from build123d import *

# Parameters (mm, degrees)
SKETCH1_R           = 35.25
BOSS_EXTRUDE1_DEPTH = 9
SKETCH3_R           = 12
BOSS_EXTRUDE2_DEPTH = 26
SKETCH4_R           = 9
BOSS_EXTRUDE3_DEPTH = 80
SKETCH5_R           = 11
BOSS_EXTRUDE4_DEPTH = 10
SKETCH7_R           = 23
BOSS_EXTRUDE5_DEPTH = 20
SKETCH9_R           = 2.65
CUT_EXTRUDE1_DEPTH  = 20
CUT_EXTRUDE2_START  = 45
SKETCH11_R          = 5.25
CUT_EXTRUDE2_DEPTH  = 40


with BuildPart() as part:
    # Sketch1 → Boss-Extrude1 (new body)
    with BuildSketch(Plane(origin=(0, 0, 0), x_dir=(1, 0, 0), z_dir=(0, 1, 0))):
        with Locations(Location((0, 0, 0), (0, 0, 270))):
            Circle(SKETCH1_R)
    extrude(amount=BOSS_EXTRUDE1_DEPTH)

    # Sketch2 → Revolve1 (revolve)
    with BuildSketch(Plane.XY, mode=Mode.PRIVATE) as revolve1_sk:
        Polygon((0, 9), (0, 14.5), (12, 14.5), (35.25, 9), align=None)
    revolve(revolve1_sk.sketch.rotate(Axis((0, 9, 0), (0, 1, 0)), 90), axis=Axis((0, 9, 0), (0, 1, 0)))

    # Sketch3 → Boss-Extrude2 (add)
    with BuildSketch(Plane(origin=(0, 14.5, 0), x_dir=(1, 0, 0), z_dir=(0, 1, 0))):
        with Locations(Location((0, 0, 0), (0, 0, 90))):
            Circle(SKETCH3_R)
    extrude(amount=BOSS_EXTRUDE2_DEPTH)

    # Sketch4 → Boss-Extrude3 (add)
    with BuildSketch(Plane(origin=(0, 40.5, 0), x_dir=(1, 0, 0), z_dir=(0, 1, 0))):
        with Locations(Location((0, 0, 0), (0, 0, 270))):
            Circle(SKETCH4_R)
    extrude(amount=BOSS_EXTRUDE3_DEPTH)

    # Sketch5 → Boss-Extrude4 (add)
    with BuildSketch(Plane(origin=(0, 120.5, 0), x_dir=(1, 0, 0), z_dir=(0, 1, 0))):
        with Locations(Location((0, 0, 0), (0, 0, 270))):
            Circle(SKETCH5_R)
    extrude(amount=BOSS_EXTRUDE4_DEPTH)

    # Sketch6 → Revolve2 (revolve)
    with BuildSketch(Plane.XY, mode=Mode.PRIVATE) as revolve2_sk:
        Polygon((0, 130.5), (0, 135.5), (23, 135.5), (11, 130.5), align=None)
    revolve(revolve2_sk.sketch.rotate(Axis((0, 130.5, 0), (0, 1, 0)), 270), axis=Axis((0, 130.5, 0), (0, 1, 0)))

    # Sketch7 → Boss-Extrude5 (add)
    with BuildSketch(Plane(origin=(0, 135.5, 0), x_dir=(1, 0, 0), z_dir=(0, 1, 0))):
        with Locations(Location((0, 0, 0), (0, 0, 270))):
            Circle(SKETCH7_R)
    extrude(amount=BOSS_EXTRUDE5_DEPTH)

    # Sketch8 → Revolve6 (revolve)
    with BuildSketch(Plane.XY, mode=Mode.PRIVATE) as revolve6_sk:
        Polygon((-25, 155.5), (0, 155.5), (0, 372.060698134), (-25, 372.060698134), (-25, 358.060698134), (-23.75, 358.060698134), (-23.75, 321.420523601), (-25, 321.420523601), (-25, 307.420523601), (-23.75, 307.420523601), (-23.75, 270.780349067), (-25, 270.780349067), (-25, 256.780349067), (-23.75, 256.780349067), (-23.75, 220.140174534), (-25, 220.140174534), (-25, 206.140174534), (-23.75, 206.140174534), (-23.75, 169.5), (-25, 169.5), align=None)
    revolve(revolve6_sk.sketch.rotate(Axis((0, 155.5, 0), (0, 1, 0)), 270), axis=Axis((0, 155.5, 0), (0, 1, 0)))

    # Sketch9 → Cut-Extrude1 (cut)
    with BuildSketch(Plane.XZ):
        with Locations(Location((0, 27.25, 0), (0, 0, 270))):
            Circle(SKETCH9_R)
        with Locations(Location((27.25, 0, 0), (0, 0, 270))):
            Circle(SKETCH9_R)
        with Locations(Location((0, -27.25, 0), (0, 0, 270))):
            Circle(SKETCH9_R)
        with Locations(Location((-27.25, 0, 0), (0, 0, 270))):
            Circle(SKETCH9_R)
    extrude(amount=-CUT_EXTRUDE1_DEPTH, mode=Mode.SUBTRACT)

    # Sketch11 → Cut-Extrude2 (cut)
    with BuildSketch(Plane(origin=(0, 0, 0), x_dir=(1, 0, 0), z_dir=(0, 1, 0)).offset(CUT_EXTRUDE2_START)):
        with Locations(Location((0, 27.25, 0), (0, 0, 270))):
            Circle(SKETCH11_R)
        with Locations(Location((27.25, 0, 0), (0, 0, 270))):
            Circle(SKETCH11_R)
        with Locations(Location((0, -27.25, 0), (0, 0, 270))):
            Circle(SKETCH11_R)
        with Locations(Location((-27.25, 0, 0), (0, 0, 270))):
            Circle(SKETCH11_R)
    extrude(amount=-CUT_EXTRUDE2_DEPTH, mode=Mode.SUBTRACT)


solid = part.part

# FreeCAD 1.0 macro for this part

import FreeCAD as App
import Part
import Sketcher

V = App.Vector
Q = App.Units.Quantity


def add_polygon(sketch, points):
    """Adds a closed chain of lines whose ends are joined by coincident constraints."""
    first, n = sketch.GeometryCount, len(points)
    for a, b in zip(points, points[1:] + points[:1]):
        sketch.addGeometry(Part.LineSegment(App.Vector(*a, 0), App.Vector(*b, 0)), False)
    for i in range(n):
        sketch.addConstraint(Sketcher.Constraint("Coincident", first + i, 2, first + (i + 1) % n, 1))

doc = App.newDocument("Part")
params = doc.addObject("Spreadsheet::Sheet", "Params")
for row, (alias, value) in enumerate([
    ("sketch1_diameter", "70.5 mm"),
    ("pad1_length", "9 mm"),
    ("sketch2_width", "12 mm"),
    ("sketch2_height", "5.5 mm"),
    ("sketch2_width2", "35.25 mm"),
    ("revolution_angle", "360 deg"),
    ("sketch3_diameter", "24 mm"),
    ("pad2_length", "26 mm"),
    ("sketch4_diameter", "18 mm"),
    ("pad3_length", "80 mm"),
    ("sketch5_diameter", "22 mm"),
    ("pad4_length", "10 mm"),
    ("sketch6_width", "11 mm"),
    ("sketch6_width2", "23 mm"),
    ("sketch6_height", "5 mm"),
    ("revolution2_angle", "360 deg"),
    ("sketch7_diameter", "46 mm"),
    ("pad5_length", "20 mm"),
    ("sketch8_width", "25 mm"),
    ("sketch8_height", "14 mm"),
    ("sketch8_width2", "1.25 mm"),
    ("revolution3_angle", "360 deg"),
    ("sketch9_diameter", "5.3 mm"),
    ("pocket1_length", "20 mm"),
    ("sketch10_diameter", "10.5 mm"),
    ("pocket2_length", "40 mm"),
], start=1):
    params.set(f"A{row}", alias)
    params.set(f"B{row}", "=" + value)
    params.setAlias(f"B{row}", alias)

body = doc.addObject("PartDesign::Body", "Body")

# Sketch on XZ plane
sketch1 = doc.addObject("Sketcher::SketchObject", "Sketch")
body.addObject(sketch1)
sketch1.AttachmentSupport = (doc.XZ_Plane, [""])
sketch1.MapMode = "FlatFace"
sketch1.addGeometry(Part.Circle(V(0, 0, 0), V(0, 0, 1), 35), False)
sketch1.addConstraint(Sketcher.Constraint("Coincident", 0, 3, -1, 1))
sketch1.addConstraint(Sketcher.Constraint("Diameter", 0, Q("70.5 mm")))
sketch1.setExpression("Constraints[1]", "Params.sketch1_diameter")
pad1 = doc.addObject("PartDesign::Pad", "Pad")
body.addObject(pad1)
pad1.Profile = sketch1
pad1.setExpression("Length", "Params.pad1_length")
pad1.Reversed = True

# Sketch on XY plane
sketch2 = doc.addObject("Sketcher::SketchObject", "Sketch001")
body.addObject(sketch2)
sketch2.AttachmentSupport = (doc.XY_Plane, [""])
sketch2.MapMode = "FlatFace"
add_polygon(sketch2, [(0, 14), (0, 9), (35, 9), (12, 14)])  # lines 0-3
sketch2.addConstraint(Sketcher.Constraint("Vertical", 0))
sketch2.addConstraint(Sketcher.Constraint("Horizontal", 1))
sketch2.addConstraint(Sketcher.Constraint("Horizontal", 3))
sketch2.addConstraint(Sketcher.Constraint("PointOnObject", 0, 2, -2))
sketch2.addConstraint(Sketcher.Constraint("DistanceX", 3, 2, 3, 1, Q("12 mm")))
sketch2.addConstraint(Sketcher.Constraint("DistanceY", 0, 2, 0, 1, Q("5.5 mm")))
sketch2.addConstraint(Sketcher.Constraint("DistanceY", -1, 1, 0, 2, Q("9 mm")))
sketch2.addConstraint(Sketcher.Constraint("DistanceX", 1, 1, 1, 2, Q("35.25 mm")))
sketch2.setExpression("Constraints[8]", "Params.sketch2_width")
sketch2.setExpression("Constraints[9]", "Params.sketch2_height")
sketch2.setExpression("Constraints[11]", "Params.sketch2_width2")
revolution = doc.addObject("PartDesign::Revolution", "Revolution")
body.addObject(revolution)
revolution.Profile = sketch2
revolution.ReferenceAxis = (sketch2, ["V_Axis"])
revolution.setExpression("Angle", "Params.revolution_angle")

# Sketch on XZ plane
sketch3 = doc.addObject("Sketcher::SketchObject", "Sketch002")
body.addObject(sketch3)
sketch3.AttachmentSupport = (doc.XZ_Plane, [""])
sketch3.MapMode = "FlatFace"
sketch3.AttachmentOffset = App.Placement(V(0, 0, -14.5), App.Rotation())
sketch3.addGeometry(Part.Circle(V(0, 0, 0), V(0, 0, 1), 12), False)
sketch3.addConstraint(Sketcher.Constraint("Coincident", 0, 3, -1, 1))
sketch3.addConstraint(Sketcher.Constraint("Diameter", 0, Q("24 mm")))
sketch3.setExpression("Constraints[1]", "Params.sketch3_diameter")
pad2 = doc.addObject("PartDesign::Pad", "Pad001")
body.addObject(pad2)
pad2.Profile = sketch3
pad2.setExpression("Length", "Params.pad2_length")
pad2.Reversed = True

# Sketch on XZ plane
sketch4 = doc.addObject("Sketcher::SketchObject", "Sketch003")
body.addObject(sketch4)
sketch4.AttachmentSupport = (doc.XZ_Plane, [""])
sketch4.MapMode = "FlatFace"
sketch4.AttachmentOffset = App.Placement(V(0, 0, -40.5), App.Rotation())
sketch4.addGeometry(Part.Circle(V(0, 0, 0), V(0, 0, 1), 9), False)
sketch4.addConstraint(Sketcher.Constraint("Coincident", 0, 3, -1, 1))
sketch4.addConstraint(Sketcher.Constraint("Diameter", 0, Q("18 mm")))
sketch4.setExpression("Constraints[1]", "Params.sketch4_diameter")
pad3 = doc.addObject("PartDesign::Pad", "Pad002")
body.addObject(pad3)
pad3.Profile = sketch4
pad3.setExpression("Length", "Params.pad3_length")
pad3.Reversed = True

# Sketch on XZ plane
sketch5 = doc.addObject("Sketcher::SketchObject", "Sketch004")
body.addObject(sketch5)
sketch5.AttachmentSupport = (doc.XZ_Plane, [""])
sketch5.MapMode = "FlatFace"
sketch5.AttachmentOffset = App.Placement(V(0, 0, -120.5), App.Rotation())
sketch5.addGeometry(Part.Circle(V(0, 0, 0), V(0, 0, 1), 11), False)
sketch5.addConstraint(Sketcher.Constraint("Coincident", 0, 3, -1, 1))
sketch5.addConstraint(Sketcher.Constraint("Diameter", 0, Q("22 mm")))
sketch5.setExpression("Constraints[1]", "Params.sketch5_diameter")
pad4 = doc.addObject("PartDesign::Pad", "Pad003")
body.addObject(pad4)
pad4.Profile = sketch5
pad4.setExpression("Length", "Params.pad4_length")
pad4.Reversed = True

# Sketch on XY plane
sketch6 = doc.addObject("Sketcher::SketchObject", "Sketch005")
body.addObject(sketch6)
sketch6.AttachmentSupport = (doc.XY_Plane, [""])
sketch6.MapMode = "FlatFace"
add_polygon(sketch6, [(0, 136), (0, 130), (11, 130), (23, 136)])  # lines 0-3
sketch6.addConstraint(Sketcher.Constraint("Vertical", 0))
sketch6.addConstraint(Sketcher.Constraint("Horizontal", 1))
sketch6.addConstraint(Sketcher.Constraint("Horizontal", 3))
sketch6.addConstraint(Sketcher.Constraint("PointOnObject", 0, 2, -2))
sketch6.addConstraint(Sketcher.Constraint("DistanceX", 1, 1, 1, 2, Q("11 mm")))
sketch6.addConstraint(Sketcher.Constraint("DistanceX", 3, 2, 3, 1, Q("23 mm")))
sketch6.addConstraint(Sketcher.Constraint("DistanceY", 0, 2, 0, 1, Q("5 mm")))
sketch6.addConstraint(Sketcher.Constraint("DistanceY", -1, 1, 0, 2, Q("130.5 mm")))
sketch6.setExpression("Constraints[8]", "Params.sketch6_width")
sketch6.setExpression("Constraints[9]", "Params.sketch6_width2")
sketch6.setExpression("Constraints[10]", "Params.sketch6_height")
revolution2 = doc.addObject("PartDesign::Revolution", "Revolution001")
body.addObject(revolution2)
revolution2.Profile = sketch6
revolution2.ReferenceAxis = (sketch6, ["V_Axis"])
revolution2.setExpression("Angle", "Params.revolution2_angle")

# Sketch on XZ plane
sketch7 = doc.addObject("Sketcher::SketchObject", "Sketch006")
body.addObject(sketch7)
sketch7.AttachmentSupport = (doc.XZ_Plane, [""])
sketch7.MapMode = "FlatFace"
sketch7.AttachmentOffset = App.Placement(V(0, 0, -135.5), App.Rotation())
sketch7.addGeometry(Part.Circle(V(0, 0, 0), V(0, 0, 1), 23), False)
sketch7.addConstraint(Sketcher.Constraint("Coincident", 0, 3, -1, 1))
sketch7.addConstraint(Sketcher.Constraint("Diameter", 0, Q("46 mm")))
sketch7.setExpression("Constraints[1]", "Params.sketch7_diameter")
pad5 = doc.addObject("PartDesign::Pad", "Pad004")
body.addObject(pad5)
pad5.Profile = sketch7
pad5.setExpression("Length", "Params.pad5_length")
pad5.Reversed = True

# Sketch on XY plane
sketch8 = doc.addObject("Sketcher::SketchObject", "Sketch007")
body.addObject(sketch8)
sketch8.AttachmentSupport = (doc.XY_Plane, [""])
sketch8.MapMode = "FlatFace"
add_polygon(sketch8, [(-25, 155.5), (0, 155.5), (0, 372.1), (-25, 372.1), (-25, 358.1), (-23.8, 358.1), (-23.8, 321.4), (-25, 321.4), (-25, 307.4), (-23.8, 307.4), (-23.8, 270.8), (-25, 270.8), (-25, 256.8), (-23.8, 256.8), (-23.8, 220.1), (-25, 220.1), (-25, 206.1), (-23.8, 206.1), (-23.8, 169.5), (-25, 169.5)])  # lines 0-19
sketch8.addConstraint(Sketcher.Constraint("Horizontal", 0))
sketch8.addConstraint(Sketcher.Constraint("Vertical", 1))
sketch8.addConstraint(Sketcher.Constraint("Horizontal", 2))
sketch8.addConstraint(Sketcher.Constraint("Vertical", 3))
sketch8.addConstraint(Sketcher.Constraint("Horizontal", 4))
sketch8.addConstraint(Sketcher.Constraint("Vertical", 5))
sketch8.addConstraint(Sketcher.Constraint("Horizontal", 6))
sketch8.addConstraint(Sketcher.Constraint("Vertical", 7))
sketch8.addConstraint(Sketcher.Constraint("Horizontal", 8))
sketch8.addConstraint(Sketcher.Constraint("Vertical", 9))
sketch8.addConstraint(Sketcher.Constraint("Horizontal", 10))
sketch8.addConstraint(Sketcher.Constraint("Vertical", 11))
sketch8.addConstraint(Sketcher.Constraint("Horizontal", 12))
sketch8.addConstraint(Sketcher.Constraint("Vertical", 13))
sketch8.addConstraint(Sketcher.Constraint("Horizontal", 14))
sketch8.addConstraint(Sketcher.Constraint("Vertical", 15))
sketch8.addConstraint(Sketcher.Constraint("Horizontal", 16))
sketch8.addConstraint(Sketcher.Constraint("Vertical", 17))
sketch8.addConstraint(Sketcher.Constraint("Horizontal", 18))
sketch8.addConstraint(Sketcher.Constraint("Vertical", 19))
sketch8.addConstraint(Sketcher.Constraint("PointOnObject", 0, 2, -2))
sketch8.addConstraint(Sketcher.Constraint("Vertical", 3, 2, 6, 2))
sketch8.addConstraint(Sketcher.Constraint("Vertical", 5, 2, 8, 2))
sketch8.addConstraint(Sketcher.Constraint("Vertical", 7, 2, 10, 2))
sketch8.addConstraint(Sketcher.Constraint("Vertical", 9, 2, 12, 2))
sketch8.addConstraint(Sketcher.Constraint("Vertical", 11, 2, 14, 2))
sketch8.addConstraint(Sketcher.Constraint("Vertical", 13, 2, 16, 2))
sketch8.addConstraint(Sketcher.Constraint("Vertical", 15, 2, 18, 2))
sketch8.addConstraint(Sketcher.Constraint("Equal", 3, 7))
sketch8.addConstraint(Sketcher.Constraint("Equal", 5, 9))
sketch8.addConstraint(Sketcher.Constraint("Equal", 7, 11))
sketch8.addConstraint(Sketcher.Constraint("Equal", 9, 13))
sketch8.addConstraint(Sketcher.Constraint("Equal", 11, 15))
sketch8.addConstraint(Sketcher.Constraint("Equal", 13, 17))
sketch8.addConstraint(Sketcher.Constraint("Equal", 15, 19))
sketch8.addConstraint(Sketcher.Constraint("DistanceX", 0, 1, 0, 2, Q("25 mm")))
sketch8.addConstraint(Sketcher.Constraint("DistanceY", 3, 2, 3, 1, Q("14 mm")))
sketch8.addConstraint(Sketcher.Constraint("DistanceX", 4, 1, 4, 2, Q("1.25 mm")))
sketch8.addConstraint(Sketcher.Constraint("DistanceY", -1, 1, 0, 2, Q("155.5 mm")))
sketch8.addConstraint(Sketcher.Constraint("DistanceY", 1, 1, 1, 2, Q("216.560698 mm")))
sketch8.setExpression("Constraints[55]", "Params.sketch8_width")
sketch8.setExpression("Constraints[56]", "Params.sketch8_height")
sketch8.setExpression("Constraints[57]", "Params.sketch8_width2")
revolution3 = doc.addObject("PartDesign::Revolution", "Revolution002")
body.addObject(revolution3)
revolution3.Profile = sketch8
revolution3.ReferenceAxis = (sketch8, ["V_Axis"])
revolution3.setExpression("Angle", "Params.revolution3_angle")

# Sketch on XZ plane
sketch9 = doc.addObject("Sketcher::SketchObject", "Sketch008")
body.addObject(sketch9)
sketch9.AttachmentSupport = (doc.XZ_Plane, [""])
sketch9.MapMode = "FlatFace"
sketch9.addGeometry(Part.Circle(V(0, 27.2, 0), V(0, 0, 1), 2.6), False)
sketch9.addGeometry(Part.Circle(V(27.2, 0, 0), V(0, 0, 1), 2.6), False)
sketch9.addGeometry(Part.Circle(V(0, -27.2, 0), V(0, 0, 1), 2.6), False)
sketch9.addGeometry(Part.Circle(V(-27.2, 0, 0), V(0, 0, 1), 2.6), False)
sketch9.addConstraint(Sketcher.Constraint("Equal", 0, 1))
sketch9.addConstraint(Sketcher.Constraint("Equal", 1, 2))
sketch9.addConstraint(Sketcher.Constraint("Equal", 2, 3))
sketch9.addConstraint(Sketcher.Constraint("Symmetric", 0, 3, 2, 3, -1, 1))
sketch9.addConstraint(Sketcher.Constraint("Symmetric", 1, 3, 3, 3, -1, 1))
sketch9.addConstraint(Sketcher.Constraint("PointOnObject", 0, 3, -2))
sketch9.addConstraint(Sketcher.Constraint("PointOnObject", 1, 3, -1))
sketch9.addConstraint(Sketcher.Constraint("Diameter", 0, Q("5.3 mm")))
sketch9.addConstraint(Sketcher.Constraint("DistanceY", 2, 3, 0, 3, Q("54.5 mm")))
sketch9.addConstraint(Sketcher.Constraint("DistanceX", 3, 3, 1, 3, Q("54.5 mm")))
sketch9.setExpression("Constraints[7]", "Params.sketch9_diameter")
pocket1 = doc.addObject("PartDesign::Pocket", "Pocket")
body.addObject(pocket1)
pocket1.Profile = sketch9
pocket1.setExpression("Length", "Params.pocket1_length")

# Sketch on XZ plane
sketch10 = doc.addObject("Sketcher::SketchObject", "Sketch009")
body.addObject(sketch10)
sketch10.AttachmentSupport = (doc.XZ_Plane, [""])
sketch10.MapMode = "FlatFace"
sketch10.AttachmentOffset = App.Placement(V(0, 0, -45), App.Rotation())
sketch10.addGeometry(Part.Circle(V(0, -27, 0), V(0, 0, 1), 5), False)
sketch10.addGeometry(Part.Circle(V(27, 0, 0), V(0, 0, 1), 5), False)
sketch10.addGeometry(Part.Circle(V(0, 27, 0), V(0, 0, 1), 5), False)
sketch10.addGeometry(Part.Circle(V(-27, 0, 0), V(0, 0, 1), 5), False)
sketch10.addConstraint(Sketcher.Constraint("Equal", 0, 1))
sketch10.addConstraint(Sketcher.Constraint("Equal", 1, 2))
sketch10.addConstraint(Sketcher.Constraint("Equal", 2, 3))
sketch10.addConstraint(Sketcher.Constraint("Symmetric", 0, 3, 2, 3, -1, 1))
sketch10.addConstraint(Sketcher.Constraint("Symmetric", 1, 3, 3, 3, -1, 1))
sketch10.addConstraint(Sketcher.Constraint("PointOnObject", 0, 3, -2))
sketch10.addConstraint(Sketcher.Constraint("PointOnObject", 1, 3, -1))
sketch10.addConstraint(Sketcher.Constraint("Diameter", 0, Q("10.5 mm")))
sketch10.addConstraint(Sketcher.Constraint("DistanceY", 0, 3, 2, 3, Q("54.5 mm")))
sketch10.addConstraint(Sketcher.Constraint("DistanceX", 3, 3, 1, 3, Q("54.5 mm")))
sketch10.setExpression("Constraints[7]", "Params.sketch10_diameter")
pocket2 = doc.addObject("PartDesign::Pocket", "Pocket001")
body.addObject(pocket2)
pocket2.Profile = sketch10
pocket2.setExpression("Length", "Params.pocket2_length")
pocket2.Reversed = True

doc.recompute()
